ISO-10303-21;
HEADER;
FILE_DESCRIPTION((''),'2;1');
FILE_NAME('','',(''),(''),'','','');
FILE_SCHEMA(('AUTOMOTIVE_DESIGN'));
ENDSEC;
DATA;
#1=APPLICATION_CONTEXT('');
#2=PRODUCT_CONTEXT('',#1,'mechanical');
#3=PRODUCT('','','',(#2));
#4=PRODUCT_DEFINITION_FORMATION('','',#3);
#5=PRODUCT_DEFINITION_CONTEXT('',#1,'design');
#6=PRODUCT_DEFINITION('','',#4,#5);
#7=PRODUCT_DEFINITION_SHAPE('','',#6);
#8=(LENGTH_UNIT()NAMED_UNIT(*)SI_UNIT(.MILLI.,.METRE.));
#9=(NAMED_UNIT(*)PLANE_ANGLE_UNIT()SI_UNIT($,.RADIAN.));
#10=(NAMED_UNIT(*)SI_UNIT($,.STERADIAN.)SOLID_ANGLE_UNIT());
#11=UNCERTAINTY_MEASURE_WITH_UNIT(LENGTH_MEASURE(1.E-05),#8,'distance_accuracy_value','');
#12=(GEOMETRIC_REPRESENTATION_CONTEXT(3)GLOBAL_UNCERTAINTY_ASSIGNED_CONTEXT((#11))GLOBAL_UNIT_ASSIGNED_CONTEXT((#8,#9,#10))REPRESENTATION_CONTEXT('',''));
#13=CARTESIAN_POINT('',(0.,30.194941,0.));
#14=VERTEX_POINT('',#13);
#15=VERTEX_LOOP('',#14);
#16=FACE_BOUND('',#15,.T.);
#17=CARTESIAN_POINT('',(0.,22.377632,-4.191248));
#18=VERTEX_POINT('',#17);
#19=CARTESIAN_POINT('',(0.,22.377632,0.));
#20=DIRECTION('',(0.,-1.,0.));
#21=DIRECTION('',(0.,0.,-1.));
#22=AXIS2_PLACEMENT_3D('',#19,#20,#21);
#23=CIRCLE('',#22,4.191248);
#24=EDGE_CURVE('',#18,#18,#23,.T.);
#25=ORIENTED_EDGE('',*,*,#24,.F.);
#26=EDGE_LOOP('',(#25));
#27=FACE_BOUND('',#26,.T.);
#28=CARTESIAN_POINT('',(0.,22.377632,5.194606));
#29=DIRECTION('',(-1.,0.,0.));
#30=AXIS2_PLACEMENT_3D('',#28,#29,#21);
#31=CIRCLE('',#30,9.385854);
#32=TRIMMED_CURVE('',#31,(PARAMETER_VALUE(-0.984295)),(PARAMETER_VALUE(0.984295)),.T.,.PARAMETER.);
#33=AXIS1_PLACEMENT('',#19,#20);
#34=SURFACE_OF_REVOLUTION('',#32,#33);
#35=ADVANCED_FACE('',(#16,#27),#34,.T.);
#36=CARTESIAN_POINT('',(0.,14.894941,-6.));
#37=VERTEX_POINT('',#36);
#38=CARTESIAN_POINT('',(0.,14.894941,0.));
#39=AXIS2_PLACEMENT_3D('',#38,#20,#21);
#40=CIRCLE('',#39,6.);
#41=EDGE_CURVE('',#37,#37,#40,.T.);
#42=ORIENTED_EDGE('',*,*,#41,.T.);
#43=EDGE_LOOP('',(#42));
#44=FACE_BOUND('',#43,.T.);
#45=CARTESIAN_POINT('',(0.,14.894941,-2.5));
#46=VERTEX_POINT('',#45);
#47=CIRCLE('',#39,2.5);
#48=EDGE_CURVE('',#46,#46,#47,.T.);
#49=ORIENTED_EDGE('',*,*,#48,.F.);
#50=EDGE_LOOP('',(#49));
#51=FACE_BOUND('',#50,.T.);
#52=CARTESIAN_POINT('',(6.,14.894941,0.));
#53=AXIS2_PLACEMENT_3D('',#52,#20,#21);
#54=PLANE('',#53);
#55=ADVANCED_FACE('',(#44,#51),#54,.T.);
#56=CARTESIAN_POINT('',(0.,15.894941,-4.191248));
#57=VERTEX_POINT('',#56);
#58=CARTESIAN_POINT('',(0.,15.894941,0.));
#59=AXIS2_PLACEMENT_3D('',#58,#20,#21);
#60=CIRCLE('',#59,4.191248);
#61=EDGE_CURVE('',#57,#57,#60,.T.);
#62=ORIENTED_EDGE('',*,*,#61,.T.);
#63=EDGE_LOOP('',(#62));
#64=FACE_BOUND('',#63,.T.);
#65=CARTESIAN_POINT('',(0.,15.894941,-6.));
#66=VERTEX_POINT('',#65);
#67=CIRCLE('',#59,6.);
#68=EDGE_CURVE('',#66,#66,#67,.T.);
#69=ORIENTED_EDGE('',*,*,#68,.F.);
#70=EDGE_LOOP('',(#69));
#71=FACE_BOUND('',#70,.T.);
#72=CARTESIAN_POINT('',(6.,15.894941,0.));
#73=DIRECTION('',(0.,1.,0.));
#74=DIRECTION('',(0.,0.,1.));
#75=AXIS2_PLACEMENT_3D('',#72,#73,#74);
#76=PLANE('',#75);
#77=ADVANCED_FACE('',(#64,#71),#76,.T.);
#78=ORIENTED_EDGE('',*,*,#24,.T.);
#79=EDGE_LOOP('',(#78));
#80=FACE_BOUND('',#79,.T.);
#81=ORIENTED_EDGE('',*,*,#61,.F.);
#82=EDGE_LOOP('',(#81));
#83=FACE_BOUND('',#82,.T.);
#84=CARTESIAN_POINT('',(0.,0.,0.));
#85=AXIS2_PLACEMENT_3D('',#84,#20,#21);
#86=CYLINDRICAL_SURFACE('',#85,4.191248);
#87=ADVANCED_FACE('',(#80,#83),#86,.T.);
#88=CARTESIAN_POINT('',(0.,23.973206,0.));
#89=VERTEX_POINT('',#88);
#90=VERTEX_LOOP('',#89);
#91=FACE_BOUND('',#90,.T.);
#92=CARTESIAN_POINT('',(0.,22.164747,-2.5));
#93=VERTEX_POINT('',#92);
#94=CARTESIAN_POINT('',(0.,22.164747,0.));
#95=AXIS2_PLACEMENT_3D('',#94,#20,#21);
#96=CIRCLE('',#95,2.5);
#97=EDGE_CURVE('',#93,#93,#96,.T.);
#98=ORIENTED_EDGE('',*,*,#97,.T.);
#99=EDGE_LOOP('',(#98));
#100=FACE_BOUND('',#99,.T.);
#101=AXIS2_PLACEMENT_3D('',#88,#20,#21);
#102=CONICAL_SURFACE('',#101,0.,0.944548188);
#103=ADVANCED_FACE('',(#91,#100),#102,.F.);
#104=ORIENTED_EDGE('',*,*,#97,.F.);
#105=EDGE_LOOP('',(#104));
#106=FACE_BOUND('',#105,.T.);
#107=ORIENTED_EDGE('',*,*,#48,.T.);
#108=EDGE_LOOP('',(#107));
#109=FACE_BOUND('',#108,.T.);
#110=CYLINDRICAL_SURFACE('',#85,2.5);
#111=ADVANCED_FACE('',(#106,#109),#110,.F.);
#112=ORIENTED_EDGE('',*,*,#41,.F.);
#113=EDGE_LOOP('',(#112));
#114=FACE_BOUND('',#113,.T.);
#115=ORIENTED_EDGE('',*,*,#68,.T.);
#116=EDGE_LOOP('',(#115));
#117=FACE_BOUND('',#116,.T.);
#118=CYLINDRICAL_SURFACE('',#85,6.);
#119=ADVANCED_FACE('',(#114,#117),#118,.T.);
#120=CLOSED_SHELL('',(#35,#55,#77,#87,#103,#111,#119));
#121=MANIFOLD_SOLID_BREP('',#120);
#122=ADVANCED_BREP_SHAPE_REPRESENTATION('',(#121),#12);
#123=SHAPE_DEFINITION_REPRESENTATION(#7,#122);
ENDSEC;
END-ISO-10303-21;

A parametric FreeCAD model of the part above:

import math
import FreeCAD as App
import Part
import Sketcher

V = App.Vector
Q = App.Units.Quantity

doc = App.newDocument("Part")
body = doc.addObject("PartDesign::Body", "Body")

# Sketch on XY plane
sketch1 = body.newObject("Sketcher::SketchObject", "Sketch")
sketch1.AttachmentSupport = (doc.getObject("XY_Plane"), [""])
sketch1.MapMode = "FlatFace"
sketch1.addGeometry([
    Part.LineSegment(V(6, 14.894941, 0), V(6, 15.894941, 0)),  # 0
    Part.LineSegment(V(6, 15.894941, 0), V(4.191248, 15.894941, 0)),  # 1
    Part.LineSegment(V(4.191248, 15.894941, 0), V(4.191248, 22.377632, 0)),  # 2
    Part.ArcOfCircle(Part.Circle(V(-5.194606, 22.377632, 0), V(0, 0, 1), 9.385854), math.radians(0), math.radians(56.395941)),  # 3
    Part.LineSegment(V(0, 30.194941, 0), V(0, 23.973206, 0)),  # 4
    Part.LineSegment(V(0, 23.973206, 0), V(2.5, 22.164747, 0)),  # 5
    Part.LineSegment(V(2.5, 22.164747, 0), V(2.5, 14.894941, 0)),  # 6
    Part.LineSegment(V(2.5, 14.894941, 0), V(6, 14.894941, 0)),  # 7
], False)
sketch1.addConstraint([
    Sketcher.Constraint("Coincident", 0, 2, 1, 1),
    Sketcher.Constraint("Coincident", 1, 2, 2, 1),
    Sketcher.Constraint("Tangent", 2, 2, 3, 1),
    Sketcher.Constraint("Coincident", 3, 2, 4, 1),
    Sketcher.Constraint("Coincident", 4, 2, 5, 1),
    Sketcher.Constraint("Coincident", 5, 2, 6, 1),
    Sketcher.Constraint("Coincident", 6, 2, 7, 1),
    Sketcher.Constraint("Coincident", 7, 2, 0, 1),
    Sketcher.Constraint("Vertical", 0),
    Sketcher.Constraint("Horizontal", 1),
    Sketcher.Constraint("Vertical", 2),
    Sketcher.Constraint("Vertical", 4),
    Sketcher.Constraint("Vertical", 6),
    Sketcher.Constraint("Horizontal", 7),
    Sketcher.Constraint("PointOnObject", 3, 2, -2),
    Sketcher.Constraint("DistanceY", 0, 1, 0, 2, Q("1 mm")),
    Sketcher.Constraint("DistanceX", 7, 1, 7, 2, Q("3.5 mm")),
    Sketcher.Constraint("DistanceX", -1, 1, 0, 2, Q("6 mm")),
    Sketcher.Constraint("DistanceY", 1, 2, 3, 2, Q("14.3 mm")),
    Sketcher.Constraint("Radius", 3, Q("9.385854 mm")),
    Sketcher.Constraint("DistanceY", 2, 1, 2, 2, Q("6.482691 mm")),
    Sketcher.Constraint("DistanceY", 4, 2, 4, 1, Q("6.221734 mm")),
    Sketcher.Constraint("DistanceY", 6, 2, 6, 1, Q("7.269806 mm")),
    Sketcher.Constraint("DistanceY", -1, 1, 0, 2, Q("15.894941 mm")),
])
revolution = body.newObject("PartDesign::Revolution", "Revolution")
revolution.Profile = sketch1
revolution.ReferenceAxis = (sketch1, ["V_Axis"])
revolution.Angle = 360

doc.recompute()
